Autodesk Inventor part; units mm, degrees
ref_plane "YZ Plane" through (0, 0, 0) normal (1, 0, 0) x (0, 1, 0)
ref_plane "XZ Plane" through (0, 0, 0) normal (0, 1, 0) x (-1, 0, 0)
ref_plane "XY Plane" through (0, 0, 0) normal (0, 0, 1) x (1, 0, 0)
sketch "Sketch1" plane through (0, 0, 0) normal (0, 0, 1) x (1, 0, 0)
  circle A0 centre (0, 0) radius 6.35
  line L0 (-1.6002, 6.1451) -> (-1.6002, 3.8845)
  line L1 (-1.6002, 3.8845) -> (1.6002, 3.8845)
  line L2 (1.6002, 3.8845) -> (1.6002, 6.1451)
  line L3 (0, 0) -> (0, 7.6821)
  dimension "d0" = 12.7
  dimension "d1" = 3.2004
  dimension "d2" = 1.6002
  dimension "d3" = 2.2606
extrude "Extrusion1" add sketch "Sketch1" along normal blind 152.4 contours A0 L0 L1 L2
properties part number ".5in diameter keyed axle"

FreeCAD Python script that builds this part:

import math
import FreeCAD as App
import Part
import Sketcher

V = App.Vector
Q = App.Units.Quantity

doc = App.newDocument("Part")
body = doc.addObject("PartDesign::Body", "Body")

sketch1 = body.newObject("Sketcher::SketchObject", "Sketch")
sketch1.AttachmentSupport = (doc.getObject("XY_Plane"), [""])
sketch1.MapMode = "FlatFace"
sketch1.addGeometry([
    Part.ArcOfCircle(Part.Circle(V(0, 0, 0), V(0, 0, 1), 6.3), math.radians(105), math.radians(435)),
    Part.LineSegment(V(1.6, 6.1, 0), V(1.6, 3.9, 0)),
    Part.LineSegment(V(1.6, 3.9, 0), V(-1.6, 3.9, 0)),
    Part.LineSegment(V(-1.6, 3.9, 0), V(-1.6, 6.1, 0)),
], False)
sketch1.addConstraint([
    Sketcher.Constraint("Coincident", 0, 2, 1, 1),
    Sketcher.Constraint("Coincident", 1, 2, 2, 1),
    Sketcher.Constraint("Coincident", 2, 2, 3, 1),
    Sketcher.Constraint("Coincident", 3, 2, 0, 1),
    Sketcher.Constraint("Vertical", 1),
    Sketcher.Constraint("Horizontal", 2),
    Sketcher.Constraint("Vertical", 3),
    Sketcher.Constraint("Coincident", 0, 3, -1, 1),
    Sketcher.Constraint("Horizontal", 0, 2, 3, 2),
    Sketcher.Constraint("Radius", 0, Q("0.25 in")),
    Sketcher.Constraint("DistanceX", 2, 2, 2, 1, Q("0.126 in")),
    Sketcher.Constraint("DistanceY", 1, 2, 1, 1, Q("0.089 in")),
])
pad1 = body.newObject("PartDesign::Pad", "Pad")
pad1.Profile = sketch1
pad1.Length = Q("6 in")

doc.recompute()
